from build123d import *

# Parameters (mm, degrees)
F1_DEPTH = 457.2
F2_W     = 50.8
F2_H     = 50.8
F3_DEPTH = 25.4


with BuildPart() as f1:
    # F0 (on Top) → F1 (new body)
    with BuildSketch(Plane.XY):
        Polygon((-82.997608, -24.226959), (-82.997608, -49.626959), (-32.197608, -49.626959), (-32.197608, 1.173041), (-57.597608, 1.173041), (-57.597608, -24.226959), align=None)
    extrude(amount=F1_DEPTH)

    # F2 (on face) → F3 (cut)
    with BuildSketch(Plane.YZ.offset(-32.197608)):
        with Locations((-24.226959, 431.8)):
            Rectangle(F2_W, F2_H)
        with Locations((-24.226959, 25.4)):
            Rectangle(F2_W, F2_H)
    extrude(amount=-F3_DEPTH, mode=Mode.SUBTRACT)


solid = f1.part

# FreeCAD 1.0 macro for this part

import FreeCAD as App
import Part
import Sketcher
from FreeCAD import Vector
Q = App.Units.Quantity

doc = App.newDocument("Part")
body = doc.addObject("PartDesign::Body", "Body")

# Sketch on XY plane
sketch1 = body.newObject("Sketcher::SketchObject", "Sketch")
sketch1.AttachmentSupport = (doc.getObject("XY_Plane"), [""])
sketch1.MapMode = "FlatFace"
sketch1.addGeometry([
    Part.LineSegment(Vector(-83, -24, 0), Vector(-83, -50, 0)),  # 0
    Part.LineSegment(Vector(-83, -50, 0), Vector(-32, -50, 0)),  # 1
    Part.LineSegment(Vector(-32, -50, 0), Vector(-32, 1, 0)),  # 2
    Part.LineSegment(Vector(-32, 1, 0), Vector(-58, 1, 0)),  # 3
    Part.LineSegment(Vector(-58, 1, 0), Vector(-58, -24, 0)),  # 4
    Part.LineSegment(Vector(-58, -24, 0), Vector(-83, -24, 0)),  # 5
], False)
sketch1.addConstraint([
    Sketcher.Constraint("Coincident", 0, 2, 1, 1),
    Sketcher.Constraint("Coincident", 1, 2, 2, 1),
    Sketcher.Constraint("Coincident", 2, 2, 3, 1),
    Sketcher.Constraint("Coincident", 3, 2, 4, 1),
    Sketcher.Constraint("Coincident", 4, 2, 5, 1),
    Sketcher.Constraint("Coincident", 5, 2, 0, 1),
    Sketcher.Constraint("Vertical", 0),
    Sketcher.Constraint("Horizontal", 1),
    Sketcher.Constraint("Vertical", 2),
    Sketcher.Constraint("Horizontal", 3),
    Sketcher.Constraint("Vertical", 4),
    Sketcher.Constraint("Horizontal", 5),
    Sketcher.Constraint("Equal", 3, 5),
    Sketcher.Constraint("Equal", 5, 0),
    Sketcher.Constraint("Equal", 1, 2),
    Sketcher.Constraint("DistanceX", 1, 1, 1, 2, Q("2 in")),
    Sketcher.Constraint("DistanceX", 0, 2, -1, 1, 82.997608),
    Sketcher.Constraint("DistanceY", 0, 2, -1, 1, 49.626959),
])
pad1 = body.newObject("PartDesign::Pad", "Pad")
pad1.Profile = sketch1
pad1.Length = Q("18 in")

# Sketch on YZ plane
sketch2 = body.newObject("Sketcher::SketchObject", "Sketch001")
sketch2.AttachmentSupport = (doc.getObject("YZ_Plane"), [""])
sketch2.MapMode = "FlatFace"
sketch2.AttachmentOffset = App.Placement(Vector(0, 0, -32.197608), App.Rotation())
sketch2.addGeometry([
    Part.LineSegment(Vector(-50, 457, 0), Vector(-50, 406, 0)),  # 0
    Part.LineSegment(Vector(-50, 406, 0), Vector(1, 406, 0)),  # 1
    Part.LineSegment(Vector(1, 406, 0), Vector(1, 457, 0)),  # 2
    Part.LineSegment(Vector(1, 457, 0), Vector(-50, 457, 0)),  # 3
    Part.LineSegment(Vector(-50, 51, 0), Vector(-50, 0, 0)),  # 4
    Part.LineSegment(Vector(-50, 0, 0), Vector(1, 0, 0)),  # 5
    Part.LineSegment(Vector(1, 0, 0), Vector(1, 51, 0)),  # 6
    Part.LineSegment(Vector(1, 51, 0), Vector(-50, 51, 0)),  # 7
], False)
sketch2.addConstraint([
    Sketcher.Constraint("Coincident", 0, 2, 1, 1),
    Sketcher.Constraint("Coincident", 1, 2, 2, 1),
    Sketcher.Constraint("Coincident", 2, 2, 3, 1),
    Sketcher.Constraint("Coincident", 3, 2, 0, 1),
    Sketcher.Constraint("Coincident", 4, 2, 5, 1),
    Sketcher.Constraint("Coincident", 5, 2, 6, 1),
    Sketcher.Constraint("Coincident", 6, 2, 7, 1),
    Sketcher.Constraint("Coincident", 7, 2, 4, 1),
    Sketcher.Constraint("Vertical", 0),
    Sketcher.Constraint("Horizontal", 1),
    Sketcher.Constraint("Vertical", 2),
    Sketcher.Constraint("Horizontal", 3),
    Sketcher.Constraint("Vertical", 4),
    Sketcher.Constraint("Horizontal", 5),
    Sketcher.Constraint("Vertical", 6),
    Sketcher.Constraint("Horizontal", 7),
    Sketcher.Constraint("PointOnObject", 4, 2, -1),
    Sketcher.Constraint("Vertical", 3, 2, 4, 2),
    Sketcher.Constraint("Vertical", 2, 2, 5, 2),
    Sketcher.Constraint("Equal", 7, 0),
    Sketcher.Constraint("Equal", 2, 4),
    Sketcher.Constraint("DistanceX", 1, 1, 1, 2, Q("2 in")),
    Sketcher.Constraint("DistanceY", -1, 1, 0, 2, Q("16 in")),
    Sketcher.Constraint("DistanceX", 0, 2, -1, 1, 49.626959),
])
pocket1 = body.newObject("PartDesign::Pocket", "Pocket")
pocket1.Profile = sketch2
pocket1.Length = Q("1 in")

doc.recompute()
